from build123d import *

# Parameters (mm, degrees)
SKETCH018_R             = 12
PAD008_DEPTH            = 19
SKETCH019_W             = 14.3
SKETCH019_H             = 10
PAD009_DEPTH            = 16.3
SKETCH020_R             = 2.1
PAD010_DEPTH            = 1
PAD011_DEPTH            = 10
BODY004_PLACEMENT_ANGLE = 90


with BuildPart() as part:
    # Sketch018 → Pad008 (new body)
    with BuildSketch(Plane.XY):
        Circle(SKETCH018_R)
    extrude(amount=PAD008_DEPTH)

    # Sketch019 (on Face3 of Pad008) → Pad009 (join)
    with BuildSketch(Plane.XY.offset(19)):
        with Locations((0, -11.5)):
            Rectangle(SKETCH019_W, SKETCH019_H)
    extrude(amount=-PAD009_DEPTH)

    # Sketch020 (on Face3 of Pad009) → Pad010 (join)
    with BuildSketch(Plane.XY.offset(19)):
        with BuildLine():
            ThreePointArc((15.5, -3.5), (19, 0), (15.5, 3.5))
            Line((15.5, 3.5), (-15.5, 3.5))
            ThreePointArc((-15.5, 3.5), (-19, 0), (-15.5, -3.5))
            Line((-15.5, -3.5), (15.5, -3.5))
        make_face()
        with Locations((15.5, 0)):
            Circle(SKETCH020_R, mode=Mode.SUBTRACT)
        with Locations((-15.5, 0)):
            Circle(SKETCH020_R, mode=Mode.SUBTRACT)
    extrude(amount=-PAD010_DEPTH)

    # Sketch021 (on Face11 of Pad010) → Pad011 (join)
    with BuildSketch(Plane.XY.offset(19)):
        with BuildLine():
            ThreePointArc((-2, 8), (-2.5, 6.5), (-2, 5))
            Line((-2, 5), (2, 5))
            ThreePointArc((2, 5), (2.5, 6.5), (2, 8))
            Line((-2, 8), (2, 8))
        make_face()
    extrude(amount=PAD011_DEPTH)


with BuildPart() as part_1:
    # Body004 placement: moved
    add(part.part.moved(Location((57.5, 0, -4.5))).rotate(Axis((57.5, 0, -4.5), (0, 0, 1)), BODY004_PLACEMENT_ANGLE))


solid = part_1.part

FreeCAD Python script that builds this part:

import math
import FreeCAD as App
import Part
import Sketcher
Q = App.Units.Quantity

doc = App.newDocument("Part")
params = doc.addObject("Spreadsheet::Sheet", "Params")
for row, (alias, value) in enumerate([
    ("sketch1_diameter", "24 mm"),
    ("pad1_length", "19 mm"),
    ("sketch2_height", "10 mm"),
    ("sketch2_width", "14.3 mm"),
    ("pad2_length", "16.3 mm"),
    ("sketch3_diameter", "4.2 mm"),
    ("sketch3_radius", "3.5 mm"),
    ("sketch3_width", "31 mm"),
    ("pad3_length", "1 mm"),
    ("sketch4_radius", "2.5 mm"),
    ("sketch4_width", "4 mm"),
    ("pad4_length", "10 mm"),
], start=1):
    params.set(f"A{row}", alias)
    params.set(f"B{row}", "=" + value)
    params.setAlias(f"B{row}", alias)

body = doc.addObject("PartDesign::Body", "Body")

# Sketch on XY plane
sketch1 = body.newObject("Sketcher::SketchObject", "Sketch")
sketch1.AttachmentSupport = (doc.getObject("XY_Plane"), [""])
sketch1.MapMode = "FlatFace"
sketch1.addGeometry(Part.Circle(App.Vector(0, 0, 0), App.Vector(0, 0, 1), 12), False)
sketch1.addConstraint([
    Sketcher.Constraint("Coincident", 0, 3, -1, 1),
    Sketcher.Constraint("Diameter", 0, Q("24 mm")),
])
sketch1.setExpression("Constraints[1]", "Params.sketch1_diameter")
pad1 = body.newObject("PartDesign::Pad", "Pad")
pad1.Profile = sketch1
pad1.setExpression("Length", "Params.pad1_length")

# Sketch on XY plane
sketch2 = body.newObject("Sketcher::SketchObject", "Sketch001")
sketch2.AttachmentSupport = (doc.getObject("XY_Plane"), [""])
sketch2.MapMode = "FlatFace"
sketch2.AttachmentOffset = App.Placement(App.Vector(0, 0, 19), App.Rotation())
sketch2.addGeometry([
    Part.LineSegment(App.Vector(-7, -6, 0), App.Vector(-7, -16, 0)),
    Part.LineSegment(App.Vector(-7, -16, 0), App.Vector(7, -16, 0)),
    Part.LineSegment(App.Vector(7, -16, 0), App.Vector(7, -6, 0)),
    Part.LineSegment(App.Vector(7, -6, 0), App.Vector(-7, -6, 0)),
], False)
sketch2.addConstraint([
    Sketcher.Constraint("Coincident", 0, 2, 1, 1),
    Sketcher.Constraint("Coincident", 1, 2, 2, 1),
    Sketcher.Constraint("Coincident", 2, 2, 3, 1),
    Sketcher.Constraint("Coincident", 3, 2, 0, 1),
    Sketcher.Constraint("Vertical", 0),
    Sketcher.Constraint("Horizontal", 1),
    Sketcher.Constraint("Vertical", 2),
    Sketcher.Constraint("Horizontal", 3),
    Sketcher.Constraint("DistanceY", 0, 2, 0, 1, Q("10 mm")),
    Sketcher.Constraint("DistanceX", 1, 1, 1, 2, Q("14.3 mm")),
    Sketcher.Constraint("DistanceY", 0, 2, -1, 1, Q("16.5 mm")),
    Sketcher.Constraint("DistanceX", 0, 2, -1, 1, Q("7.15 mm")),
])
sketch2.setExpression("Constraints[8]", "Params.sketch2_height")
sketch2.setExpression("Constraints[9]", "Params.sketch2_width")
pad2 = body.newObject("PartDesign::Pad", "Pad001")
pad2.Profile = sketch2
pad2.setExpression("Length", "Params.pad2_length")
pad2.Reversed = True

# Sketch on XY plane
sketch3 = body.newObject("Sketcher::SketchObject", "Sketch002")
sketch3.AttachmentSupport = (doc.getObject("XY_Plane"), [""])
sketch3.MapMode = "FlatFace"
sketch3.AttachmentOffset = App.Placement(App.Vector(0, 0, 19), App.Rotation())
sketch3.addGeometry([
    Part.ArcOfCircle(Part.Circle(App.Vector(15.5, 0, 0), App.Vector(0, 0, 1), 3.5), math.radians(-90), math.radians(90)),  # 0
    Part.LineSegment(App.Vector(15.5, 3.5, 0), App.Vector(-15.5, 3.5, 0)),  # 1
    Part.ArcOfCircle(Part.Circle(App.Vector(-15.5, 0, 0), App.Vector(0, 0, 1), 3.5), math.radians(90), math.radians(270)),  # 2
    Part.LineSegment(App.Vector(-15.5, -3.5, 0), App.Vector(15.5, -3.5, 0)),  # 3
    Part.Circle(App.Vector(-15.5, 0, 0), App.Vector(0, 0, 1), 2.1),  # 4
    Part.Circle(App.Vector(15.5, 0, 0), App.Vector(0, 0, 1), 2.1),  # 5
], False)
sketch3.addConstraint([
    Sketcher.Constraint("Tangent", 0, 2, 1, 1),
    Sketcher.Constraint("Tangent", 1, 2, 2, 1),
    Sketcher.Constraint("Tangent", 2, 2, 3, 1),
    Sketcher.Constraint("Tangent", 3, 2, 0, 1),
    Sketcher.Constraint("Horizontal", 1),
    Sketcher.Constraint("Horizontal", 3),
    Sketcher.Constraint("Coincident", 4, 3, 2, 3),
    Sketcher.Constraint("Coincident", 5, 3, 0, 3),
    Sketcher.Constraint("Equal", 4, 5),
    Sketcher.Constraint("Symmetric", 0, 3, 2, 3, -1, 1),
    Sketcher.Constraint("Diameter", 4, Q("4.2 mm")),
    Sketcher.Constraint("Radius", 0, Q("3.5 mm")),
    Sketcher.Constraint("DistanceX", 1, 2, 1, 1, Q("31 mm")),
])
sketch3.setExpression("Constraints[10]", "Params.sketch3_diameter")
sketch3.setExpression("Constraints[11]", "Params.sketch3_radius")
sketch3.setExpression("Constraints[12]", "Params.sketch3_width")
pad3 = body.newObject("PartDesign::Pad", "Pad002")
pad3.Profile = sketch3
pad3.setExpression("Length", "Params.pad3_length")
pad3.Reversed = True

# Sketch on XY plane
sketch4 = body.newObject("Sketcher::SketchObject", "Sketch003")
sketch4.AttachmentSupport = (doc.getObject("XY_Plane"), [""])
sketch4.MapMode = "FlatFace"
sketch4.AttachmentOffset = App.Placement(App.Vector(0, 0, 19), App.Rotation())
sketch4.addGeometry([
    Part.ArcOfCircle(Part.Circle(App.Vector(0, 6.5, 0), App.Vector(0, 0, 1), 2.5), math.radians(143), math.radians(217)),
    Part.LineSegment(App.Vector(-2, 5, 0), App.Vector(2, 5, 0)),
    Part.ArcOfCircle(Part.Circle(App.Vector(0, 6.5, 0), App.Vector(0, 0, 1), 2.5), math.radians(-37), math.radians(37)),
    Part.LineSegment(App.Vector(2, 8, 0), App.Vector(-2, 8, 0)),
], False)
sketch4.addConstraint([
    Sketcher.Constraint("Coincident", 0, 2, 1, 1),
    Sketcher.Constraint("Coincident", 1, 2, 2, 1),
    Sketcher.Constraint("Coincident", 2, 2, 3, 1),
    Sketcher.Constraint("Coincident", 3, 2, 0, 1),
    Sketcher.Constraint("Horizontal", 1),
    Sketcher.Constraint("Horizontal", 3),
    Sketcher.Constraint("Coincident", 2, 3, 0, 3),
    Sketcher.Constraint("Equal", 0, 2),
    Sketcher.Constraint("PointOnObject", 0, 3, -2),
    Sketcher.Constraint("Vertical", 1, 2, 2, 2),
    Sketcher.Constraint("Radius", 0, Q("2.5 mm")),
    Sketcher.Constraint("DistanceX", 1, 1, 1, 2, Q("4 mm")),
    Sketcher.Constraint("DistanceY", -1, 1, 0, 2, Q("5 mm")),
])
sketch4.setExpression("Constraints[10]", "Params.sketch4_radius")
sketch4.setExpression("Constraints[11]", "Params.sketch4_width")
pad4 = body.newObject("PartDesign::Pad", "Pad003")
pad4.Profile = sketch4
pad4.setExpression("Length", "Params.pad4_length")
body2 = doc.addObject("PartDesign::Body", "Body001")
doc.recompute()

body.Placement = App.Placement(App.Vector(57.5, 0, -4.5), App.Rotation(App.Vector(0, 0, 1), 90))
boolean = body2.newObject("PartDesign::Boolean", "Boolean")
boolean.Type = "Fuse"
boolean.addObjects([body])

doc.recompute()
